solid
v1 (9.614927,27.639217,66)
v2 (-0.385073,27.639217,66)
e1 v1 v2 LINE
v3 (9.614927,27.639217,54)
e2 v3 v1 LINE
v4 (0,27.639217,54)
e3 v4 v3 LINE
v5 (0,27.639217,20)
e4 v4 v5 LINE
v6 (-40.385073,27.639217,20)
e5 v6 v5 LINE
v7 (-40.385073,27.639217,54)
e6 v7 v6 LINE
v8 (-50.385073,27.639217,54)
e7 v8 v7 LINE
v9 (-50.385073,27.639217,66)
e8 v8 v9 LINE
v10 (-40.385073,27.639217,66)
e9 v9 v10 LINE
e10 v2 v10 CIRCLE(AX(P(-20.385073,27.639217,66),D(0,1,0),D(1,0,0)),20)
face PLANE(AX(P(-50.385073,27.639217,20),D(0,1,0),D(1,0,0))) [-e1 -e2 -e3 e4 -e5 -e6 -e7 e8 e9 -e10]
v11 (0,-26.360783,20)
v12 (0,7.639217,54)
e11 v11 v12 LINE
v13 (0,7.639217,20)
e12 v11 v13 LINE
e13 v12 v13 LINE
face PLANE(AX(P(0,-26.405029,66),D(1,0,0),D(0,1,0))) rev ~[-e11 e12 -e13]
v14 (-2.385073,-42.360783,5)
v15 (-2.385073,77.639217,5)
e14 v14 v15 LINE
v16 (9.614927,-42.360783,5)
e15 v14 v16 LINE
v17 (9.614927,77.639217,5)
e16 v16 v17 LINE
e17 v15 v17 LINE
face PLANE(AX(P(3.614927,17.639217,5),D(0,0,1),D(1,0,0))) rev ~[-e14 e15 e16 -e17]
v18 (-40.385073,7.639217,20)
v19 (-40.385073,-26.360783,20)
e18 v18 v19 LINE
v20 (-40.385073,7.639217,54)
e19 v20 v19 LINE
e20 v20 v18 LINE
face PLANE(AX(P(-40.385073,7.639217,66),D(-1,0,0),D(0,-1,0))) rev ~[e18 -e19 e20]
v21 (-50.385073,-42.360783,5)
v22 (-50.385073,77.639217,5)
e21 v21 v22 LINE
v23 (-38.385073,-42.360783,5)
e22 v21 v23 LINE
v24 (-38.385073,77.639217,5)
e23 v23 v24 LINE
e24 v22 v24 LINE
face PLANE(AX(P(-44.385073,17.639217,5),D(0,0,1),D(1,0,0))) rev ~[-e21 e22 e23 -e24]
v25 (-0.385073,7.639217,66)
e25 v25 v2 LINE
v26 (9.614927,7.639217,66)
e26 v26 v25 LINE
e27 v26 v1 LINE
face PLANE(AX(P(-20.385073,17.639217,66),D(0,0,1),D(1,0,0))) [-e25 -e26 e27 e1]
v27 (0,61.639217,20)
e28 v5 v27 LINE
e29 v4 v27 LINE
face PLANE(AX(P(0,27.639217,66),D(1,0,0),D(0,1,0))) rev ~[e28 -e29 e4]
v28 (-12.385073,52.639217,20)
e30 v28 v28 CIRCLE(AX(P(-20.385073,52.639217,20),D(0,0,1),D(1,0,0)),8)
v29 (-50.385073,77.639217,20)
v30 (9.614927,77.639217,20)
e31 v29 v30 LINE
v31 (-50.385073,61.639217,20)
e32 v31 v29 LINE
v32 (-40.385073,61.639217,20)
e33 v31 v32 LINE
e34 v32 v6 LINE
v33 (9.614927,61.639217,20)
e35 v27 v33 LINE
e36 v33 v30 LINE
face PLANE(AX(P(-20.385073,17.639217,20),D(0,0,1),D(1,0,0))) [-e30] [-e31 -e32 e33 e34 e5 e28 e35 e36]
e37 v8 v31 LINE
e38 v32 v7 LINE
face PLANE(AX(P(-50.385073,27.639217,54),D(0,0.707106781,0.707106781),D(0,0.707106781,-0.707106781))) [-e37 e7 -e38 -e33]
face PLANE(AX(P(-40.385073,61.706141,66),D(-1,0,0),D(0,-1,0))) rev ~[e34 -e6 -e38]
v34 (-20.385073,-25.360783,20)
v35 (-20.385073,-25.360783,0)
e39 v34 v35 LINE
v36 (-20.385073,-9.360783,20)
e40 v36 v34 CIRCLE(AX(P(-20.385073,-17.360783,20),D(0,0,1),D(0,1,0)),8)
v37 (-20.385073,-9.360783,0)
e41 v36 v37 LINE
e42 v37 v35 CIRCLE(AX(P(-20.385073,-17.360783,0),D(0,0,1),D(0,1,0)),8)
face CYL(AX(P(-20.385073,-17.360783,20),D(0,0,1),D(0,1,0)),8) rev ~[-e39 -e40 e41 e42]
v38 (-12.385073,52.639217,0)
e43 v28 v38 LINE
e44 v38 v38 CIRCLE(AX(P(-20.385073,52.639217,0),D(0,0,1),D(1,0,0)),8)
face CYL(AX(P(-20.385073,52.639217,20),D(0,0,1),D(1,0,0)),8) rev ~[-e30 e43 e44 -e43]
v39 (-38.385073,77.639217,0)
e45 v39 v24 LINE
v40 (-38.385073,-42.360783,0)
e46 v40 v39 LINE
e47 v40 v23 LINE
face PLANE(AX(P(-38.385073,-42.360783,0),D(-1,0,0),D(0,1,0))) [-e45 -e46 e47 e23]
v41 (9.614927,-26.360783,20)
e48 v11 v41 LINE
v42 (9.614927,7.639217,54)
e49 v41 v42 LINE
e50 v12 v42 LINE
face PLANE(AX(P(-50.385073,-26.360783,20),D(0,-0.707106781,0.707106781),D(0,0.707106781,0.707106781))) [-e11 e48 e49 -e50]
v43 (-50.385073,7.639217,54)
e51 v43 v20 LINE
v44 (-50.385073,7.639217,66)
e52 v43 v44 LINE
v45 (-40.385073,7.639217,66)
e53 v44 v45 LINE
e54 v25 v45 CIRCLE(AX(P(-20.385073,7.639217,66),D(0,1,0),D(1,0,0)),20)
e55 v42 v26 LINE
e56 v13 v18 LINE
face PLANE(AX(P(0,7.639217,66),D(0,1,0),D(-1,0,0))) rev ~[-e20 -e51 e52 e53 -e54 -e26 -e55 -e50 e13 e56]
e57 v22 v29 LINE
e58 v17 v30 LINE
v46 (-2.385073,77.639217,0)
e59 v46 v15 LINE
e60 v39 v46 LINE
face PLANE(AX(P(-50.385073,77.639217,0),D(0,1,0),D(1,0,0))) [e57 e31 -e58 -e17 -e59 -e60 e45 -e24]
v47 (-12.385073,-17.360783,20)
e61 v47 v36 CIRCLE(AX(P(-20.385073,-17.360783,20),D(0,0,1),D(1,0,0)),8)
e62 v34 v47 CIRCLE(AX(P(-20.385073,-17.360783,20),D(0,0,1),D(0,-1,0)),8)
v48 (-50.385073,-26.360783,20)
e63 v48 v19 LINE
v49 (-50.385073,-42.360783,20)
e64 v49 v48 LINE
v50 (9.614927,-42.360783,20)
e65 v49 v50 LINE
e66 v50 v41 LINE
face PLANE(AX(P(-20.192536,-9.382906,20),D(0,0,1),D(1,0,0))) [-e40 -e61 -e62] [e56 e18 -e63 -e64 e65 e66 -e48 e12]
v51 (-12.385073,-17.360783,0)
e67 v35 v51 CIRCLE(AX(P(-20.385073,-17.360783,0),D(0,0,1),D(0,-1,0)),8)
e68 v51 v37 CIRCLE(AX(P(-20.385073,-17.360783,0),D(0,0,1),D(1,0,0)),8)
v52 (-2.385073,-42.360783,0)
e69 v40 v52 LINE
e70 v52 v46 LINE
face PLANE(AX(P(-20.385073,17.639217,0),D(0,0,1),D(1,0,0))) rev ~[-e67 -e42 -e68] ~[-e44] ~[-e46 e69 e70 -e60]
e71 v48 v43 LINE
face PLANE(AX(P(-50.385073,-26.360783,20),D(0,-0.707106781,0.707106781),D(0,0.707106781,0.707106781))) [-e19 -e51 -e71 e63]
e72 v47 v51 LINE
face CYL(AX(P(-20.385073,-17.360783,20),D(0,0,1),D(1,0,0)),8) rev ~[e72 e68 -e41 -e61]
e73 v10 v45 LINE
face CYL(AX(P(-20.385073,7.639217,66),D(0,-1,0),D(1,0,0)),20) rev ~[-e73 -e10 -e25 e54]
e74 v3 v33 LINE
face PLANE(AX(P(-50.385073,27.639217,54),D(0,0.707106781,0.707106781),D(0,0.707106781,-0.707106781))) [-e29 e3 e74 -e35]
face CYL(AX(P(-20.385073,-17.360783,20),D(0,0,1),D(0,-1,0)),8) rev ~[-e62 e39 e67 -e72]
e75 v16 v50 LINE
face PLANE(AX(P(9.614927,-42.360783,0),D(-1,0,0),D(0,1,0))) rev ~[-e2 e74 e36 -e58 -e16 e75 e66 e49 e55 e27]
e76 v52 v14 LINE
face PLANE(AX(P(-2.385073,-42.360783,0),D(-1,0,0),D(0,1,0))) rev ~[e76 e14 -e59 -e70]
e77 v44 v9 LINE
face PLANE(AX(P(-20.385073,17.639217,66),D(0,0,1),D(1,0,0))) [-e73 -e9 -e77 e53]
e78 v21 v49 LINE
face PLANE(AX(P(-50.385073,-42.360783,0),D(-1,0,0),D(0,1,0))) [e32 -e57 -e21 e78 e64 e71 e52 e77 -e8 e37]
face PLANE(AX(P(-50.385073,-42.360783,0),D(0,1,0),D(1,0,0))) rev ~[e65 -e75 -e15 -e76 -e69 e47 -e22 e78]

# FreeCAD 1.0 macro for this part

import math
import FreeCAD as App
import Part
import Sketcher
from FreeCAD import Vector
Q = App.Units.Quantity


def add_polygon(sketch, points):
    """Adds a closed chain of lines whose ends are joined by coincident constraints."""
    first, n = sketch.GeometryCount, len(points)
    for a, b in zip(points, points[1:] + points[:1]):
        sketch.addGeometry(Part.LineSegment(App.Vector(*a, 0), App.Vector(*b, 0)), False)
    for i in range(n):
        sketch.addConstraint(Sketcher.Constraint("Coincident", first + i, 2, first + (i + 1) % n, 1))

doc = App.newDocument("Part")
body = doc.addObject("PartDesign::Body", "Body")

sketch1 = doc.addObject("Sketcher::SketchObject", "Sketch")
body.addObject(sketch1)
sketch1.AttachmentSupport = (doc.XY_Plane, [""])
sketch1.MapMode = "FlatFace"
add_polygon(sketch1, [(-50.385073, 77.639217), (-50.385073, -42.360783), (9.614927, -42.360783), (9.614927, 77.639217)])
sketch1.addConstraint(Sketcher.Constraint("Vertical", 0))
sketch1.addConstraint(Sketcher.Constraint("Horizontal", 1))
sketch1.addConstraint(Sketcher.Constraint("Vertical", 2))
sketch1.addConstraint(Sketcher.Constraint("Horizontal", 3))
sketch1.addConstraint(Sketcher.Constraint("DistanceX", 1, 1, 1, 2, Q("60 mm")))
sketch1.addConstraint(Sketcher.Constraint("DistanceY", 0, 2, 0, 1, Q("120 mm")))
sketch1.addConstraint(Sketcher.Constraint("DistanceX", 0, 2, -1, 1, Q("50.385073 mm")))
sketch1.addConstraint(Sketcher.Constraint("DistanceY", 0, 2, -1, 1, Q("42.360783 mm")))
pad1 = doc.addObject("PartDesign::Pad", "Pad")
body.addObject(pad1)
pad1.Profile = sketch1
pad1.Length = 20

sketch2 = doc.addObject("Sketcher::SketchObject", "Sketch001")
body.addObject(sketch2)
sketch2.AttachmentSupport = (doc.XY_Plane, [""])
sketch2.MapMode = "FlatFace"
add_polygon(sketch2, [(-50.385073, 77.639217), (-50.385073, -42.360783), (-38.385073, -42.360783), (-38.385073, 77.639217)])
add_polygon(sketch2, [(-2.385073, 77.639217), (-2.385073, -42.360783), (9.614927, -42.360783), (9.614927, 77.639217)])
sketch2.addConstraint(Sketcher.Constraint("Vertical", 0))
sketch2.addConstraint(Sketcher.Constraint("Horizontal", 1))
sketch2.addConstraint(Sketcher.Constraint("Vertical", 2))
sketch2.addConstraint(Sketcher.Constraint("Horizontal", 3))
sketch2.addConstraint(Sketcher.Constraint("Vertical", 4))
sketch2.addConstraint(Sketcher.Constraint("Horizontal", 5))
sketch2.addConstraint(Sketcher.Constraint("Vertical", 6))
sketch2.addConstraint(Sketcher.Constraint("Horizontal", 7))
sketch2.addConstraint(Sketcher.Constraint("Horizontal", 1, 2, 4, 2))
sketch2.addConstraint(Sketcher.Constraint("Horizontal", 3, 2, 6, 2))
sketch2.addConstraint(Sketcher.Constraint("Equal", 3, 5))
sketch2.addConstraint(Sketcher.Constraint("DistanceX", 1, 1, 1, 2, Q("12 mm")))
sketch2.addConstraint(Sketcher.Constraint("DistanceY", 0, 2, 0, 1, Q("120 mm")))
sketch2.addConstraint(Sketcher.Constraint("DistanceX", 1, 2, 4, 2, Q("36 mm")))
sketch2.addConstraint(Sketcher.Constraint("DistanceX", 0, 2, -1, 1, Q("50.385073 mm")))
sketch2.addConstraint(Sketcher.Constraint("DistanceY", 0, 2, -1, 1, Q("42.360783 mm")))
pocket1 = doc.addObject("PartDesign::Pocket", "Pocket")
body.addObject(pocket1)
pocket1.Profile = sketch2
pocket1.Length = 5
pocket1.Reversed = True

sketch3 = doc.addObject("Sketcher::SketchObject", "Sketch002")
body.addObject(sketch3)
sketch3.AttachmentSupport = (doc.XY_Plane, [""])
sketch3.MapMode = "FlatFace"
sketch3.AttachmentOffset = App.Placement(Vector(0, 0, 20), App.Rotation())
sketch3.addGeometry(Part.ArcOfCircle(Part.Circle(Vector(-20.385073, -17.360783, 0), Vector(0, 0, 1), 8), math.radians(90), math.radians(270)), False)
sketch3.addGeometry(Part.ArcOfCircle(Part.Circle(Vector(-20.385073, -17.360783, 0), Vector(0, 0, 1), 8), math.radians(-90), math.radians(0)), False)
sketch3.addGeometry(Part.ArcOfCircle(Part.Circle(Vector(-20.385073, -17.360783, 0), Vector(0, 0, 1), 8), math.radians(0), math.radians(90)), False)
sketch3.addGeometry(Part.Circle(Vector(-20.385073, 52.639217, 0), Vector(0, 0, 1), 8), False)
sketch3.addConstraint(Sketcher.Constraint("Tangent", 0, 2, 1, 1))
sketch3.addConstraint(Sketcher.Constraint("Tangent", 1, 2, 2, 1))
sketch3.addConstraint(Sketcher.Constraint("Tangent", 2, 2, 0, 1))
sketch3.addConstraint(Sketcher.Constraint("Equal", 2, 3))
sketch3.addConstraint(Sketcher.Constraint("Horizontal", 2, 3, 1, 2))
sketch3.addConstraint(Sketcher.Constraint("Vertical", 2, 3, 3, 3))
sketch3.addConstraint(Sketcher.Constraint("Vertical", 3, 3, 0, 2))
sketch3.addConstraint(Sketcher.Constraint("Vertical", 0, 2, 2, 2))
sketch3.addConstraint(Sketcher.Constraint("Diameter", 3, Q("16 mm")))
sketch3.addConstraint(Sketcher.Constraint("DistanceY", 0, 3, 3, 3, Q("70 mm")))
sketch3.addConstraint(Sketcher.Constraint("DistanceX", 0, 3, -1, 1, Q("20.385073 mm")))
sketch3.addConstraint(Sketcher.Constraint("DistanceY", 0, 3, -1, 1, Q("17.360783 mm")))
pocket2 = doc.addObject("PartDesign::Pocket", "Pocket001")
body.addObject(pocket2)
pocket2.Profile = sketch3
pocket2.Length = 45.4

sketch4 = doc.addObject("Sketcher::SketchObject", "Sketch003")
body.addObject(sketch4)
sketch4.AttachmentSupport = (doc.XY_Plane, [""])
sketch4.MapMode = "FlatFace"
sketch4.AttachmentOffset = App.Placement(Vector(0, 0, 20), App.Rotation())
add_polygon(sketch4, [(-50.385073, 27.639217), (-50.385073, 7.639217), (9.614927, 7.639217), (9.614927, 27.639217)])
sketch4.addConstraint(Sketcher.Constraint("Vertical", 0))
sketch4.addConstraint(Sketcher.Constraint("Horizontal", 1))
sketch4.addConstraint(Sketcher.Constraint("Vertical", 2))
sketch4.addConstraint(Sketcher.Constraint("Horizontal", 3))
sketch4.addConstraint(Sketcher.Constraint("DistanceX", 1, 1, 1, 2, Q("60 mm")))
sketch4.addConstraint(Sketcher.Constraint("DistanceY", 0, 2, 0, 1, Q("20 mm")))
sketch4.addConstraint(Sketcher.Constraint("DistanceX", 0, 2, -1, 1, Q("50.385073 mm")))
sketch4.addConstraint(Sketcher.Constraint("DistanceY", -1, 1, 0, 2, Q("7.639217 mm")))
pad2 = doc.addObject("PartDesign::Pad", "Pad001")
body.addObject(pad2)
pad2.Profile = sketch4
pad2.Length = 46

sketch5 = doc.addObject("Sketcher::SketchObject", "Sketch004")
body.addObject(sketch5)
sketch5.AttachmentSupport = (doc.YZ_Plane, [""])
sketch5.MapMode = "FlatFace"
sketch5.AttachmentOffset = App.Placement(Vector(0, 0, -50.385073), App.Rotation())
add_polygon(sketch5, [(7.639217, 20), (-26.360783, 20), (7.639217, 54)])
add_polygon(sketch5, [(27.639217, 54), (61.639217, 20), (27.639217, 20)])
sketch5.addConstraint(Sketcher.Constraint("Horizontal", 0))
sketch5.addConstraint(Sketcher.Constraint("Vertical", 2))
sketch5.addConstraint(Sketcher.Constraint("Horizontal", 4))
sketch5.addConstraint(Sketcher.Constraint("Vertical", 5))
sketch5.addConstraint(Sketcher.Constraint("Perpendicular", 1, 3))
sketch5.addConstraint(Sketcher.Constraint("Horizontal", 2, 2, 3, 2))
sketch5.addConstraint(Sketcher.Constraint("Horizontal", 1, 2, 5, 2))
sketch5.addConstraint(Sketcher.Constraint("Equal", 0, 4))
sketch5.addConstraint(Sketcher.Constraint("DistanceX", 0, 2, 0, 1, Q("34 mm")))
sketch5.addConstraint(Sketcher.Constraint("DistanceY", -1, 1, 0, 2, Q("20 mm")))
sketch5.addConstraint(Sketcher.Constraint("DistanceX", 2, 2, 3, 2, Q("54 mm")))
sketch5.addConstraint(Sketcher.Constraint("DistanceX", 0, 2, -1, 1, Q("26.360783 mm")))
pad3 = doc.addObject("PartDesign::Pad", "Pad002")
body.addObject(pad3)
pad3.Profile = sketch5
pad3.Length = 60

sketch6 = doc.addObject("Sketcher::SketchObject", "Sketch005")
body.addObject(sketch6)
sketch6.AttachmentSupport = (doc.XZ_Plane, [""])
sketch6.MapMode = "FlatFace"
sketch6.AttachmentOffset = App.Placement(Vector(0, 0, -7.639217), App.Rotation())
sketch6.addGeometry(Part.Circle(Vector(-20.385073, 66, 0), Vector(0, 0, 1), 20), False)
sketch6.addConstraint(Sketcher.Constraint("Diameter", 0, Q("40 mm")))
sketch6.addConstraint(Sketcher.Constraint("DistanceY", -1, 1, 0, 3, Q("66 mm")))
sketch6.addConstraint(Sketcher.Constraint("DistanceX", 0, 3, -1, 1, Q("20.385073 mm")))
pocket3 = doc.addObject("PartDesign::Pocket", "Pocket002")
body.addObject(pocket3)
pocket3.Profile = sketch6
pocket3.Type = "ThroughAll"
pocket3.Midplane = True

sketch7 = doc.addObject("Sketcher::SketchObject", "Sketch006")
body.addObject(sketch7)
sketch7.AttachmentSupport = (doc.XY_Plane, [""])
sketch7.MapMode = "FlatFace"
sketch7.AttachmentOffset = App.Placement(Vector(0, 0, 66), App.Rotation())
add_polygon(sketch7, [(-40.385073, 61.706141), (-40.385073, 27.639217), (0, 27.639217), (0, 61.706141)])
add_polygon(sketch7, [(-40.385073, 7.639217), (-40.385073, -26.405029), (0, -26.405029), (0, 7.639217)])
sketch7.addConstraint(Sketcher.Constraint("Vertical", 0))
sketch7.addConstraint(Sketcher.Constraint("Horizontal", 1))
sketch7.addConstraint(Sketcher.Constraint("Vertical", 2))
sketch7.addConstraint(Sketcher.Constraint("Horizontal", 3))
sketch7.addConstraint(Sketcher.Constraint("Vertical", 4))
sketch7.addConstraint(Sketcher.Constraint("Horizontal", 5))
sketch7.addConstraint(Sketcher.Constraint("Vertical", 6))
sketch7.addConstraint(Sketcher.Constraint("Horizontal", 7))
sketch7.addConstraint(Sketcher.Constraint("PointOnObject", 1, 2, -2))
sketch7.addConstraint(Sketcher.Constraint("PointOnObject", 5, 2, -2))
sketch7.addConstraint(Sketcher.Constraint("Vertical", 3, 2, 4, 2))
sketch7.addConstraint(Sketcher.Constraint("DistanceY", 6, 2, 1, 2, Q("20 mm")))
sketch7.addConstraint(Sketcher.Constraint("DistanceX", 1, 1, 1, 2, Q("40.385073 mm")))
sketch7.addConstraint(Sketcher.Constraint("DistanceY", 0, 2, 0, 1, Q("34.066923 mm")))
sketch7.addConstraint(Sketcher.Constraint("DistanceY", 4, 2, 4, 1, Q("34.044246 mm")))
sketch7.addConstraint(Sketcher.Constraint("DistanceY", -1, 1, 2, 2, Q("61.706141 mm")))
pocket4 = doc.addObject("PartDesign::Pocket", "Pocket003")
body.addObject(pocket4)
pocket4.Profile = sketch7
pocket4.Length = 46

doc.recompute()
